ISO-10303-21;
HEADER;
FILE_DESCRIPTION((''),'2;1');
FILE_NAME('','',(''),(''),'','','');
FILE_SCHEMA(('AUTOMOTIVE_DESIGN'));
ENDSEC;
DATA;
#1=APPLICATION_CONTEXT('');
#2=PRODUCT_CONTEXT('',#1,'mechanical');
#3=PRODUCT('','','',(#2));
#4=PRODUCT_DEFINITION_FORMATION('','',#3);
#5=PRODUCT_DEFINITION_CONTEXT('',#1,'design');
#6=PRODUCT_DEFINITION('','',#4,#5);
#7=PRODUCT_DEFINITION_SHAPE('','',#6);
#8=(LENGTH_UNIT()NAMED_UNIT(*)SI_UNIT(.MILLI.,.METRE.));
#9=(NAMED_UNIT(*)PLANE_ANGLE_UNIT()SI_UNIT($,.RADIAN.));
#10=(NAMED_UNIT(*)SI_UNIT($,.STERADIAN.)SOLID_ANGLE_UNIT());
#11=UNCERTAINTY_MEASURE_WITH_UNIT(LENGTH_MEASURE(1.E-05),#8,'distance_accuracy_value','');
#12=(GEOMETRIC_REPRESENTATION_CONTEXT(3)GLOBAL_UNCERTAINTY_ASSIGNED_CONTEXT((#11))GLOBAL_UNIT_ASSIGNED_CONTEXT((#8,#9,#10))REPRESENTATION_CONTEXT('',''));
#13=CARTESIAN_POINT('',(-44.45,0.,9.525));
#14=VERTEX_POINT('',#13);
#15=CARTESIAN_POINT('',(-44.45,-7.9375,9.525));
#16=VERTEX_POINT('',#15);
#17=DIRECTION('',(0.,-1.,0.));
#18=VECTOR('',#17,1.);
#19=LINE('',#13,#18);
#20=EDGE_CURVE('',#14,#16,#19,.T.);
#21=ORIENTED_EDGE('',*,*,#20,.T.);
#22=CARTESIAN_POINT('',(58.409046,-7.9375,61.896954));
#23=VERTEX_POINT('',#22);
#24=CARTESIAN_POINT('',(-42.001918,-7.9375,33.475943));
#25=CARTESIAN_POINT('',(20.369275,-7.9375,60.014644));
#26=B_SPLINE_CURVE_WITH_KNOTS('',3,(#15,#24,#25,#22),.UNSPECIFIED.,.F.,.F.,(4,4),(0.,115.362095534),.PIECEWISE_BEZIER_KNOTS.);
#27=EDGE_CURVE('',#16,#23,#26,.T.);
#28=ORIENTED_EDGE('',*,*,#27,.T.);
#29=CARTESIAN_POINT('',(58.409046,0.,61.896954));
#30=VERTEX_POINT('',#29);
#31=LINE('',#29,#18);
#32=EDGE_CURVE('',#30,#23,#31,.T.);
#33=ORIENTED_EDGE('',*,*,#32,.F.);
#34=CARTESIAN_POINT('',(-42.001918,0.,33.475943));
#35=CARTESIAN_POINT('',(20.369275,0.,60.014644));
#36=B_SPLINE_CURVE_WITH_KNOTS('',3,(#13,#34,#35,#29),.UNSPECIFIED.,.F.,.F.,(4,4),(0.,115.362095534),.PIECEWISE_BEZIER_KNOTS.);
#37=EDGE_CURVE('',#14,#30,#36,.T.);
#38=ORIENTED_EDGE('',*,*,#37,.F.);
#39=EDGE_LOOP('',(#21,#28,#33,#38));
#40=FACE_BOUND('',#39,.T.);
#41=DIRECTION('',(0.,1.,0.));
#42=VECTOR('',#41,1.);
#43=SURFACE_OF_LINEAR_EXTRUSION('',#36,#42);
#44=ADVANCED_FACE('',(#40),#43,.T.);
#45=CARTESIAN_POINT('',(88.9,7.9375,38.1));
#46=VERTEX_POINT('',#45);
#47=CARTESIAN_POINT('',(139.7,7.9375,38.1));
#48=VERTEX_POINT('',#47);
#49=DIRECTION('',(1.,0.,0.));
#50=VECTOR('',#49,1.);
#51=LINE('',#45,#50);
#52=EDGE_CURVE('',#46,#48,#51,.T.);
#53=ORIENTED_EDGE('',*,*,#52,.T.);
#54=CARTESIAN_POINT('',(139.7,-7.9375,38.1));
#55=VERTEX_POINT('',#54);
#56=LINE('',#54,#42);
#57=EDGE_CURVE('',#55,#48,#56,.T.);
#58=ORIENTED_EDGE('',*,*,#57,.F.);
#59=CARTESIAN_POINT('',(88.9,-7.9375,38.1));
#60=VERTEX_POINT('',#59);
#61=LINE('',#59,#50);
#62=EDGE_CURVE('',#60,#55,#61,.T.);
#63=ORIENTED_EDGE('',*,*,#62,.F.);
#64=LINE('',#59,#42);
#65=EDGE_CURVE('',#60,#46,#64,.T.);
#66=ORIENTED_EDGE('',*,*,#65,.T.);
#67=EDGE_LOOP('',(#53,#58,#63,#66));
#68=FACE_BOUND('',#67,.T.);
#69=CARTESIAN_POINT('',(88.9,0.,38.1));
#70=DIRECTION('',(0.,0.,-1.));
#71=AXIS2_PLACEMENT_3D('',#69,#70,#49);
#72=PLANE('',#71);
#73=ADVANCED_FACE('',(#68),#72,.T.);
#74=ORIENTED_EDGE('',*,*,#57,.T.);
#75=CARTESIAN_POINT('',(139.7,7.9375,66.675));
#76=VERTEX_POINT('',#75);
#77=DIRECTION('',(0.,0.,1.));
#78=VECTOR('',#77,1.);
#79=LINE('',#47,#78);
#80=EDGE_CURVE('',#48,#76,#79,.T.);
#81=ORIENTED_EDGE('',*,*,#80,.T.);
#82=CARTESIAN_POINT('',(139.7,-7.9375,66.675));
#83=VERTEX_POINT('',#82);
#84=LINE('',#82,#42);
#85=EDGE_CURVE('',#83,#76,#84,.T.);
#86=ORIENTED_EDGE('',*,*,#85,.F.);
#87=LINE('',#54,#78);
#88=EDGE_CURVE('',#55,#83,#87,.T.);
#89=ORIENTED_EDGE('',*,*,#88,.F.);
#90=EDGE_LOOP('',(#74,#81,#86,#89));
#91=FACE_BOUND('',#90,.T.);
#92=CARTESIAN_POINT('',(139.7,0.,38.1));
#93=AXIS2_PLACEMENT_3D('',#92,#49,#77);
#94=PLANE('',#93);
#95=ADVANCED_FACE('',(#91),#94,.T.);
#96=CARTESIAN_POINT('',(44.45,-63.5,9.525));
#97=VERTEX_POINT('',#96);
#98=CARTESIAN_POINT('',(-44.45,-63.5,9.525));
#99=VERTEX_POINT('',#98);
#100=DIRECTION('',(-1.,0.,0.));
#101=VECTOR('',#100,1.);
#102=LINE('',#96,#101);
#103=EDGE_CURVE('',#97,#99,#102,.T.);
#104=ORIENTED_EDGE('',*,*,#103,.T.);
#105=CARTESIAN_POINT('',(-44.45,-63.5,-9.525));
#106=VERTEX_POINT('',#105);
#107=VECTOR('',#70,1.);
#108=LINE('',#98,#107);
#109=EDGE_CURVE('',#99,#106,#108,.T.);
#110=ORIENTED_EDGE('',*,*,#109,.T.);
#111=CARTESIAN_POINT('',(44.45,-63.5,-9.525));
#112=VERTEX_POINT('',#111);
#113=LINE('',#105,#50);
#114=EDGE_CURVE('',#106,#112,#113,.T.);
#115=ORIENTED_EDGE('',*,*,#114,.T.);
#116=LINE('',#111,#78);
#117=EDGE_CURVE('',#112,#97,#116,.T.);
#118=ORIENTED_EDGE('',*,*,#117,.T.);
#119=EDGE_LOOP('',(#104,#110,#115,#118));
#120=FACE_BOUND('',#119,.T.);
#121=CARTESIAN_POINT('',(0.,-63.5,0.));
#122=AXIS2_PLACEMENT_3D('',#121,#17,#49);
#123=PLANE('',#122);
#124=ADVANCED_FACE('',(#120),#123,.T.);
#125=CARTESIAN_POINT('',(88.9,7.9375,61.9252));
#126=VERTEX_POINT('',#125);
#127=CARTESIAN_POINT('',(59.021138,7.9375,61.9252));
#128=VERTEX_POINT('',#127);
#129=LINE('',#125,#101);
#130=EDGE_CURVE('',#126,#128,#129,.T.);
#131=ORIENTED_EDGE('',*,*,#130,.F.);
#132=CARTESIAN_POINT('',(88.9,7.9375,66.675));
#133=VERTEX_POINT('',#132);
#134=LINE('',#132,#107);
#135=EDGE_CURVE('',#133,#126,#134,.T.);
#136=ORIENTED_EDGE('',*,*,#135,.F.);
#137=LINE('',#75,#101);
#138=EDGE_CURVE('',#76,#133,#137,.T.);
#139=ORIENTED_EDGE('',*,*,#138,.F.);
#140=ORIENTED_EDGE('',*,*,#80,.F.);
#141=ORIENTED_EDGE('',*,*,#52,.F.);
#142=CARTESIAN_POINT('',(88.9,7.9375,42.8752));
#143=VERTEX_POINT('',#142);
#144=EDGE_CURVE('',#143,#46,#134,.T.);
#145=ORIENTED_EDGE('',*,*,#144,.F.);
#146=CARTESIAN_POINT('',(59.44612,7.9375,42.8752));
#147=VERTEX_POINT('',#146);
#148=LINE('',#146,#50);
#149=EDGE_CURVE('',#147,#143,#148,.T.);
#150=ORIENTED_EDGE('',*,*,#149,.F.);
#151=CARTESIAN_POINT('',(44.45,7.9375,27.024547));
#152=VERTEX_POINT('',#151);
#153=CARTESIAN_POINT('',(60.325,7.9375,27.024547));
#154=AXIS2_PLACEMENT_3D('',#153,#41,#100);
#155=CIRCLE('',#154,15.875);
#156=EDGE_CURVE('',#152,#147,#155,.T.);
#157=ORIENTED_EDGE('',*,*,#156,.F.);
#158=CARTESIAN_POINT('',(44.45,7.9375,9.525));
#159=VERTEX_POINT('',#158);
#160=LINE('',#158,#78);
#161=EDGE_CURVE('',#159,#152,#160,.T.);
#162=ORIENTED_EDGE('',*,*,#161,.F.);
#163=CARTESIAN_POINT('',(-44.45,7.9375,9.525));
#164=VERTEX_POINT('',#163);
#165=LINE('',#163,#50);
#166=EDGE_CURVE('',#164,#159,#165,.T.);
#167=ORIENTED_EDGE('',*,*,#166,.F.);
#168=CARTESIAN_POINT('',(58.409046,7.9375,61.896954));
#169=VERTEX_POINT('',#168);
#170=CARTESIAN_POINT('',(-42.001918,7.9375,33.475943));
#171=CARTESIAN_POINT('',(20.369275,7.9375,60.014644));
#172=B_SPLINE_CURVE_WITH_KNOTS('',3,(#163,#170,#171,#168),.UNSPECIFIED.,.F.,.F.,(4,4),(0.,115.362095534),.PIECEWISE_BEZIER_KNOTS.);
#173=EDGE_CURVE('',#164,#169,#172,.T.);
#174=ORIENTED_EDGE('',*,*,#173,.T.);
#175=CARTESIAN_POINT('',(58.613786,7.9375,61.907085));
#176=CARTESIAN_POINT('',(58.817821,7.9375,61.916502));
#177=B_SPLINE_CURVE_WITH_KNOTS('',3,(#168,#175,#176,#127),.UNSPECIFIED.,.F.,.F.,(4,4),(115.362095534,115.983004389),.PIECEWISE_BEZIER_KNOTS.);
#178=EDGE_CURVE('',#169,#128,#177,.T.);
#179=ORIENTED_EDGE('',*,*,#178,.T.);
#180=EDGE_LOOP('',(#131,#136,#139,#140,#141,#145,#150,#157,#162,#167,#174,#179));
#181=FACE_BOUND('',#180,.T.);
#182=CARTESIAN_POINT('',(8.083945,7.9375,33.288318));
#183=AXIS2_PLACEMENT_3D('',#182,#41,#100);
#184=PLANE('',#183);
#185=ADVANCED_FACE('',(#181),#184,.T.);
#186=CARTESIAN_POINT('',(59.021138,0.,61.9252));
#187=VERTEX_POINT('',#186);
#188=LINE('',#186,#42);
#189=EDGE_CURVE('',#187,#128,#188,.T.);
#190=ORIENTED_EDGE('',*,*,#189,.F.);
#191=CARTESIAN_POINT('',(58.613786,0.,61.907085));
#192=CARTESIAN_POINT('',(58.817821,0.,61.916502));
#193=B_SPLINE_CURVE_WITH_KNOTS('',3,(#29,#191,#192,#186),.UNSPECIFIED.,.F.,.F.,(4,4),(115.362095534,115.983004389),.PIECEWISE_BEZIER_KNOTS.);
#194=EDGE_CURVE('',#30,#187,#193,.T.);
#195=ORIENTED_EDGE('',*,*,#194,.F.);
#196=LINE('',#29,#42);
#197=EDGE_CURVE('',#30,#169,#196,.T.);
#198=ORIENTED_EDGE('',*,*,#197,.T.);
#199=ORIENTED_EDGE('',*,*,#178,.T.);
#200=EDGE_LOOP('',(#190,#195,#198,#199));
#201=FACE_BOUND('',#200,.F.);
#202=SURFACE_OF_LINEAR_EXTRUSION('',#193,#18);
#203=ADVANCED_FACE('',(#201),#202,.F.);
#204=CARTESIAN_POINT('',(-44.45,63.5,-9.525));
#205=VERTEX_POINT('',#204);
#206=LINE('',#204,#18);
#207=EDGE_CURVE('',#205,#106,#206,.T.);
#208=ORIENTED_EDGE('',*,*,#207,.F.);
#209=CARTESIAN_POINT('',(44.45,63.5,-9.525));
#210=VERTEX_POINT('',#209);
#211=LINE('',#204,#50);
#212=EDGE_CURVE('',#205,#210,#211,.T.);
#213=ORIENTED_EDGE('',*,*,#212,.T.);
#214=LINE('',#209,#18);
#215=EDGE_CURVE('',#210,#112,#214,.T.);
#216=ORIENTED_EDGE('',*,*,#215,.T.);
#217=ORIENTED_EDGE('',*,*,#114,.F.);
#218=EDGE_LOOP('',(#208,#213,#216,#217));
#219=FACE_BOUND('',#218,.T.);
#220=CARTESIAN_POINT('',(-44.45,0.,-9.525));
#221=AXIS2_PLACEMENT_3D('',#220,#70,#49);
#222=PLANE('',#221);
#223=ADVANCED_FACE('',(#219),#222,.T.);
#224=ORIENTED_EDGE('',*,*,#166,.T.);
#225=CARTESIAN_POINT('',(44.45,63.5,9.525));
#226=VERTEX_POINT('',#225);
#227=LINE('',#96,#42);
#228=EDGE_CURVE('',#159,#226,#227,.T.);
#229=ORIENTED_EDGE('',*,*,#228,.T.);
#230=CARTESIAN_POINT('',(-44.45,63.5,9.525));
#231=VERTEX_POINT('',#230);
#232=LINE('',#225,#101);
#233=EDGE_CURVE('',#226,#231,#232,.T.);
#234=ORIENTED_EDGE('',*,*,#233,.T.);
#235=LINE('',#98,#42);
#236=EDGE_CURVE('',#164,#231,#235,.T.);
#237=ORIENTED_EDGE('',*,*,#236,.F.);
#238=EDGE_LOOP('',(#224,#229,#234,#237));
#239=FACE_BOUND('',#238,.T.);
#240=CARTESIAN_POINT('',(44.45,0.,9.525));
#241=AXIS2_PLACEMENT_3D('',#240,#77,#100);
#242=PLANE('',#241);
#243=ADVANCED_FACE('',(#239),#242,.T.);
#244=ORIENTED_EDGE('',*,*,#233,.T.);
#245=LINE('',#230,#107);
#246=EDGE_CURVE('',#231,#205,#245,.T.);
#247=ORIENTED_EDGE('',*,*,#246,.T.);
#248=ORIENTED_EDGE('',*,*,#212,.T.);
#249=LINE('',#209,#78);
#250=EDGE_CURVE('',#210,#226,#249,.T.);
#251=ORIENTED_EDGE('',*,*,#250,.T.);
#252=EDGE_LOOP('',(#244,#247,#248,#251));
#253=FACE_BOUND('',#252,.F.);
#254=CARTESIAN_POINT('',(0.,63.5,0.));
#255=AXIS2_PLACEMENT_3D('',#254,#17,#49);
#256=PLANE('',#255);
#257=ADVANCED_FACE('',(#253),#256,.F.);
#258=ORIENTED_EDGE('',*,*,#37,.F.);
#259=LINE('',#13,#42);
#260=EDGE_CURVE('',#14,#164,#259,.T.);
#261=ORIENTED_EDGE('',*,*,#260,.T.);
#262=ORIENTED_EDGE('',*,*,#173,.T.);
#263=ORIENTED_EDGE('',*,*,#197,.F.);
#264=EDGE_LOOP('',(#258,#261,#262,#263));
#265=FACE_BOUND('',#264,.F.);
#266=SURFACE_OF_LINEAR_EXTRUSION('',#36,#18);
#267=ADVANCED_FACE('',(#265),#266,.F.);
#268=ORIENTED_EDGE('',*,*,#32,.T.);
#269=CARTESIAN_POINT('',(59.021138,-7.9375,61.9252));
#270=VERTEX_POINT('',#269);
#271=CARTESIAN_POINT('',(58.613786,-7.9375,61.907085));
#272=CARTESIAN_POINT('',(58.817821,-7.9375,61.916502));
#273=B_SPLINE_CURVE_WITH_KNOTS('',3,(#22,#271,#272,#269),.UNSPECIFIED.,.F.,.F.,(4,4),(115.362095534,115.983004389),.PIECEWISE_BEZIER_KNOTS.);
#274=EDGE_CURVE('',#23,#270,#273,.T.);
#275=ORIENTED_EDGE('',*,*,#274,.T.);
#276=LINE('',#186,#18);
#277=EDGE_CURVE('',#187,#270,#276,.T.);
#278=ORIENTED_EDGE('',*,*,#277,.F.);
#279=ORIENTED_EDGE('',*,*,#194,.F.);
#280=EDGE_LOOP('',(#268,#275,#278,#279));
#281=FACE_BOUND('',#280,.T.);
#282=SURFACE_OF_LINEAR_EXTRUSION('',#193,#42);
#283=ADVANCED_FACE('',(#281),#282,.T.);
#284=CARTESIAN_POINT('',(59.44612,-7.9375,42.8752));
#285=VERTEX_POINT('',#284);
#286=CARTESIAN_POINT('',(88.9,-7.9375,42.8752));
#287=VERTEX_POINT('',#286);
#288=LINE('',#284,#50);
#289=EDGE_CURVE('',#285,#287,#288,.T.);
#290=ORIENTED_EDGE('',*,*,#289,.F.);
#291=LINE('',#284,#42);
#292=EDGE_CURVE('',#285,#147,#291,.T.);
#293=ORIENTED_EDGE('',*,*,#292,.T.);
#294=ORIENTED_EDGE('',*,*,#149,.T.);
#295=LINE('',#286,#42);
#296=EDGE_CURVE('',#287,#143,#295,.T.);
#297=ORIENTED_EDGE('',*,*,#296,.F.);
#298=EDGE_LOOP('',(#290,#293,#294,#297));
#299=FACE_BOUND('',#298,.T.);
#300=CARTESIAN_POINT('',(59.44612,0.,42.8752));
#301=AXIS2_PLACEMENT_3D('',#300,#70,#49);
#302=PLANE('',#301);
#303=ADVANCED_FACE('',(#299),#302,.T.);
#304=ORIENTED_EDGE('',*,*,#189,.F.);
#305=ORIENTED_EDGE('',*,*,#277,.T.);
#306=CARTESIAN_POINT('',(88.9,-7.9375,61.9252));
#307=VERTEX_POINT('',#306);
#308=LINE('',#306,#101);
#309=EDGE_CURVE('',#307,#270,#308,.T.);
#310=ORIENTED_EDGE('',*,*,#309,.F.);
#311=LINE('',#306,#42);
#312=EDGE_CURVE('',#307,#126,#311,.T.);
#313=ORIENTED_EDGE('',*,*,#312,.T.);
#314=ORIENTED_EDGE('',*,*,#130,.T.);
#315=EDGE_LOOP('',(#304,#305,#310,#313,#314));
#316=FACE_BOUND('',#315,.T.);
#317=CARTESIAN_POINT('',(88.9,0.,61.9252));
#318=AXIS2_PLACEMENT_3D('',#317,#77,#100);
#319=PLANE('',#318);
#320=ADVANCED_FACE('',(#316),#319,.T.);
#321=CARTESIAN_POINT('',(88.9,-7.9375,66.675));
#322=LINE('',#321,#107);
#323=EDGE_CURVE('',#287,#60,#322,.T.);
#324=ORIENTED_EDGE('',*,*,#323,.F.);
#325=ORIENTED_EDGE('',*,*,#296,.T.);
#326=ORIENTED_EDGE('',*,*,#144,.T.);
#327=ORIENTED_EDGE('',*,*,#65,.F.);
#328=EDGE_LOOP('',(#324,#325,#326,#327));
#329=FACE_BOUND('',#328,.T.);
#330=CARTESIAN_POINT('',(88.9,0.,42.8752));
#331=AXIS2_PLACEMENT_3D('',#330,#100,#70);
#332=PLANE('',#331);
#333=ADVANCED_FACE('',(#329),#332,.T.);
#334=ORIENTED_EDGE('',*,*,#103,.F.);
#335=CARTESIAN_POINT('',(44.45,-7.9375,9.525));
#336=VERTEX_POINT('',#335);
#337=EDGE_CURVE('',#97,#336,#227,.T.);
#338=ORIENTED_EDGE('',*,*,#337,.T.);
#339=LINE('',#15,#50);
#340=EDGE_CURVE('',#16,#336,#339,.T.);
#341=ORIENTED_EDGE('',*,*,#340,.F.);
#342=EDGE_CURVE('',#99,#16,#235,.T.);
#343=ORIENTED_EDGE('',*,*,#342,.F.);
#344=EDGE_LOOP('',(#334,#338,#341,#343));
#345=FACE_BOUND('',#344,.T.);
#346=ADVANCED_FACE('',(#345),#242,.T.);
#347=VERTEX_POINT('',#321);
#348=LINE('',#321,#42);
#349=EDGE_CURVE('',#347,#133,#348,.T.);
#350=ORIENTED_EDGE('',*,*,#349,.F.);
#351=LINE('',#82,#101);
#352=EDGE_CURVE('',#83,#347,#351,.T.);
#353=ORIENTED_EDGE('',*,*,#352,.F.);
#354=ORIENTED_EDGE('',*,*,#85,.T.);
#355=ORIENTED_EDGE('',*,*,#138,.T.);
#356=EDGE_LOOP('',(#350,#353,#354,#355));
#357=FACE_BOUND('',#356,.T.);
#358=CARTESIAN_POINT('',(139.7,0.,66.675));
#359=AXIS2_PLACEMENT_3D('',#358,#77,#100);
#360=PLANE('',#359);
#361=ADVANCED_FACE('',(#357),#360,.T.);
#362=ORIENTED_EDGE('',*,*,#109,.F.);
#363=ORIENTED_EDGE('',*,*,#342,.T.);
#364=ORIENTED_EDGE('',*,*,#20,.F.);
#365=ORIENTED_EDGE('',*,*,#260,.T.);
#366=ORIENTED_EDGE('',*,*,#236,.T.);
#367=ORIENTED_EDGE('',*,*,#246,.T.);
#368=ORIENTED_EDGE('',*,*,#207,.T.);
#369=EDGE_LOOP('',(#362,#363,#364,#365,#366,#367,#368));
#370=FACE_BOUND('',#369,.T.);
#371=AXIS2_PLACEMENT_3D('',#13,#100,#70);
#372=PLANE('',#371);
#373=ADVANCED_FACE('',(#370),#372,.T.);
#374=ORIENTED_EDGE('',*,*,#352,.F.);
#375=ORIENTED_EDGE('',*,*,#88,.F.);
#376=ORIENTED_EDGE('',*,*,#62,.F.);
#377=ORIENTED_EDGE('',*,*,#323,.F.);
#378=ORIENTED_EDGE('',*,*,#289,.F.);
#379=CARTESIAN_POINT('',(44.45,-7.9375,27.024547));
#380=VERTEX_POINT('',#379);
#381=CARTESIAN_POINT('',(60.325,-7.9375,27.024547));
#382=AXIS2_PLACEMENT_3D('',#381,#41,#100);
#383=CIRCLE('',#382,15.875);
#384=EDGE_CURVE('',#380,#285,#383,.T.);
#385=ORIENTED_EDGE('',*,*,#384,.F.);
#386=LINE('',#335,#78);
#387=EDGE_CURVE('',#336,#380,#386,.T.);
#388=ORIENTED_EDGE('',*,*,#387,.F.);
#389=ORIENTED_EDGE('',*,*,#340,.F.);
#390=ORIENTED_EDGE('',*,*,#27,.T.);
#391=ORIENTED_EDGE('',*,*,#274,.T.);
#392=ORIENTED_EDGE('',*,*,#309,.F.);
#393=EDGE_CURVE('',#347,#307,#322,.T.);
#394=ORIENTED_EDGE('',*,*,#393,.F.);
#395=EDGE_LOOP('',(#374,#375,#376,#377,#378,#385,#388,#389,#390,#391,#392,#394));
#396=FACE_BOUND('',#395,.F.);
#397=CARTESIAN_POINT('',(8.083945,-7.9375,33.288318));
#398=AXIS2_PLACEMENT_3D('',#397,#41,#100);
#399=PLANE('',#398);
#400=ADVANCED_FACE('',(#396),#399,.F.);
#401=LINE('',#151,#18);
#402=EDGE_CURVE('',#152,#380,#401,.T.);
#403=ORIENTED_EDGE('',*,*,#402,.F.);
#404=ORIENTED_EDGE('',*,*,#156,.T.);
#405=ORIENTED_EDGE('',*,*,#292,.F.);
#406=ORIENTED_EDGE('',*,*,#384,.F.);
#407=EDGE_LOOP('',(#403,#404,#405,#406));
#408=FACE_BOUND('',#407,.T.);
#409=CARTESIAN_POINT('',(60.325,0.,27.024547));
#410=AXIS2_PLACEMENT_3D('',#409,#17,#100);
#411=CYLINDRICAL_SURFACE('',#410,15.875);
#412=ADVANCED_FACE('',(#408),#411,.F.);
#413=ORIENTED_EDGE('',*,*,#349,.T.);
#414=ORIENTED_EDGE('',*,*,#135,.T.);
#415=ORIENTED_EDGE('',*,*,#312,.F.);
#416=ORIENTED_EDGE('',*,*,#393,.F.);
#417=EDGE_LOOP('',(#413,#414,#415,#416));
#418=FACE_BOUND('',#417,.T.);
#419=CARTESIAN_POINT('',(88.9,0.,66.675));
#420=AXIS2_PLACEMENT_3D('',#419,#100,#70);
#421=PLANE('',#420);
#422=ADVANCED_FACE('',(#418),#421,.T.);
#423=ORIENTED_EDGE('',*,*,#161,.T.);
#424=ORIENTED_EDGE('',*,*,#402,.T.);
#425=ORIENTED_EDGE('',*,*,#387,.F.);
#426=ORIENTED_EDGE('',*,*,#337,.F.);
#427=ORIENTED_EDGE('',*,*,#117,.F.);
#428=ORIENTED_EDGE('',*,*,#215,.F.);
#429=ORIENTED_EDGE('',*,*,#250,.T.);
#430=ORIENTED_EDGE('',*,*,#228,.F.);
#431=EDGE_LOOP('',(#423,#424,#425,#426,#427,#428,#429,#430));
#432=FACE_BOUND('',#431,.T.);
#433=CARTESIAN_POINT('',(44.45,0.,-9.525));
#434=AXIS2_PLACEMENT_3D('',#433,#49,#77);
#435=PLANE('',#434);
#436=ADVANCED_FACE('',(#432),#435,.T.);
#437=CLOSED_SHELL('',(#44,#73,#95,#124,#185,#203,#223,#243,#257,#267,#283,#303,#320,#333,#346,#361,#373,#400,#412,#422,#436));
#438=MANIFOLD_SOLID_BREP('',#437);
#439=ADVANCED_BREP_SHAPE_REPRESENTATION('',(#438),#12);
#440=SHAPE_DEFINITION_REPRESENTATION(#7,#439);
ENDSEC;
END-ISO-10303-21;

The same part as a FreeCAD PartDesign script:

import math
import FreeCAD as App
import Part
import Sketcher

V = App.Vector
Q = App.Units.Quantity

doc = App.newDocument("Part")
body = doc.addObject("PartDesign::Body", "Body")

# Sketch on XZ plane
sketch1 = body.newObject("Sketcher::SketchObject", "Sketch")
sketch1.AttachmentSupport = (doc.getObject("XZ_Plane"), [""])
sketch1.MapMode = "FlatFace"
sketch1.addGeometry(Part.LineSegment(V(-44, 10, 0), V(-44, -10, 0)), False)
sketch1.addGeometry(Part.LineSegment(V(-44, -10, 0), V(44, -10, 0)), False)
sketch1.addGeometry(Part.LineSegment(V(44, -10, 0), V(44, 10, 0)), False)
sketch1.addGeometry(Part.LineSegment(V(44, 10, 0), V(-44, 10, 0)), False)
sketch1.addConstraint(Sketcher.Constraint("Coincident", 0, 2, 1, 1))
sketch1.addConstraint(Sketcher.Constraint("Coincident", 1, 2, 2, 1))
sketch1.addConstraint(Sketcher.Constraint("Coincident", 2, 2, 3, 1))
sketch1.addConstraint(Sketcher.Constraint("Coincident", 3, 2, 0, 1))
sketch1.addConstraint(Sketcher.Constraint("Vertical", 0))
sketch1.addConstraint(Sketcher.Constraint("Horizontal", 1))
sketch1.addConstraint(Sketcher.Constraint("Vertical", 2))
sketch1.addConstraint(Sketcher.Constraint("Horizontal", 3))
sketch1.addConstraint(Sketcher.Constraint("Symmetric", 0, 2, 2, 2, -1, 1))
sketch1.addConstraint(Sketcher.Constraint("DistanceX", 1, 1, 1, 2, Q("3.5 in")))
sketch1.addConstraint(Sketcher.Constraint("DistanceY", 0, 2, 0, 1, Q("0.75 in")))
pad1 = body.newObject("PartDesign::Pad", "Pad")
pad1.Profile = sketch1
pad1.Length = Q("5 in")
pad1.Midplane = True

# Sketch on XZ plane
sketch2 = body.newObject("Sketcher::SketchObject", "Sketch001")
sketch2.AttachmentSupport = (doc.getObject("XZ_Plane"), [""])
sketch2.MapMode = "FlatFace"
sketch2.addGeometry(Part.BSplineCurve([V(-44.45, 9.525, 0), V(-42.001918, 33.475943, 0), V(20.369275, 60.014644, 0), V(58.409046, 61.896954, 0)], [4, 4], [0, 115.362095534], False, 3, [1, 1, 1, 1], False), False)
sketch2.addGeometry(Part.LineSegment(V(-44.45, 9.525, 0), V(44.45, 9.525, 0)), False)
sketch2.addGeometry(Part.LineSegment(V(44.45, 9.525, 0), V(44.45, 27.024547, 0)), False)
sketch2.addGeometry(Part.ArcOfCircle(Part.Circle(V(60.325, 27.024547, 0), V(0, 0, 1), 15.875), math.radians(93.173661), math.radians(180)), False)
sketch2.addGeometry(Part.LineSegment(V(59.44612, 42.8752, 0), V(88.9, 42.8752, 0)), False)
sketch2.addGeometry(Part.LineSegment(V(88.9, 42.8752, 0), V(88.9, 38.1, 0)), False)
sketch2.addGeometry(Part.LineSegment(V(88.9, 38.1, 0), V(139.7, 38.1, 0)), False)
sketch2.addGeometry(Part.LineSegment(V(139.7, 38.1, 0), V(139.7, 66.675, 0)), False)
sketch2.addGeometry(Part.LineSegment(V(139.7, 66.675, 0), V(88.9, 66.675, 0)), False)
sketch2.addGeometry(Part.LineSegment(V(88.9, 66.675, 0), V(88.9, 61.9252, 0)), False)
sketch2.addGeometry(Part.LineSegment(V(88.9, 61.9252, 0), V(59.021138, 61.9252, 0)), False)
sketch2.addGeometry(Part.BSplineCurve([V(58.409046, 61.896954, 0), V(58.613786, 61.907085, 0), V(58.817821, 61.916502, 0), V(59.021138, 61.9252, 0)], [4, 4], [115.362095534, 115.983004389], False, 3, [1, 1, 1, 1], False), False)
sketch2.addConstraint(Sketcher.Constraint("Block", 0))
sketch2.addConstraint(Sketcher.Constraint("Block", 11))
sketch2.addConstraint(Sketcher.Constraint("Coincident", 0, 1, 1, 1))
sketch2.addConstraint(Sketcher.Constraint("Coincident", 1, 2, 2, 1))
sketch2.addConstraint(Sketcher.Constraint("Tangent", 2, 2, 3, 2))
sketch2.addConstraint(Sketcher.Constraint("Coincident", 3, 1, 4, 1))
sketch2.addConstraint(Sketcher.Constraint("Coincident", 4, 2, 5, 1))
sketch2.addConstraint(Sketcher.Constraint("Coincident", 5, 2, 6, 1))
sketch2.addConstraint(Sketcher.Constraint("Coincident", 6, 2, 7, 1))
sketch2.addConstraint(Sketcher.Constraint("Coincident", 7, 2, 8, 1))
sketch2.addConstraint(Sketcher.Constraint("Coincident", 8, 2, 9, 1))
sketch2.addConstraint(Sketcher.Constraint("Coincident", 9, 2, 10, 1))
sketch2.addConstraint(Sketcher.Constraint("Coincident", 10, 2, 11, 2))
sketch2.addConstraint(Sketcher.Constraint("Horizontal", 1))
sketch2.addConstraint(Sketcher.Constraint("Vertical", 2))
sketch2.addConstraint(Sketcher.Constraint("Horizontal", 4))
sketch2.addConstraint(Sketcher.Constraint("Vertical", 5))
sketch2.addConstraint(Sketcher.Constraint("Horizontal", 6))
sketch2.addConstraint(Sketcher.Constraint("Vertical", 7))
sketch2.addConstraint(Sketcher.Constraint("Horizontal", 8))
sketch2.addConstraint(Sketcher.Constraint("Vertical", 9))
sketch2.addConstraint(Sketcher.Constraint("Horizontal", 10))
sketch2.addConstraint(Sketcher.Constraint("Vertical", 5, 2, 8, 2))
sketch2.addConstraint(Sketcher.Constraint("DistanceX", 6, 1, 6, 2, Q("2 in")))
sketch2.addConstraint(Sketcher.Constraint("DistanceX", 1, 1, 1, 2, Q("3.5 in")))
sketch2.addConstraint(Sketcher.Constraint("Radius", 3, Q("0.625 in")))
sketch2.addConstraint(Sketcher.Constraint("DistanceX", -1, 1, 4, 2, Q("3.5 in")))
sketch2.addConstraint(Sketcher.Constraint("DistanceY", -1, 1, 5, 2, Q("1.5 in")))
sketch2.addConstraint(Sketcher.Constraint("DistanceY", 5, 2, 5, 1, Q("0.188 in")))
sketch2.addConstraint(Sketcher.Constraint("DistanceY", 7, 1, 7, 2, Q("1.125 in")))
sketch2.addConstraint(Sketcher.Constraint("DistanceX", 4, 1, 4, 2, 29.45388))
pad2 = body.newObject("PartDesign::Pad", "Pad001")
pad2.Profile = sketch2
pad2.Length = Q("0.625 in")
pad2.Midplane = True

doc.recompute()
